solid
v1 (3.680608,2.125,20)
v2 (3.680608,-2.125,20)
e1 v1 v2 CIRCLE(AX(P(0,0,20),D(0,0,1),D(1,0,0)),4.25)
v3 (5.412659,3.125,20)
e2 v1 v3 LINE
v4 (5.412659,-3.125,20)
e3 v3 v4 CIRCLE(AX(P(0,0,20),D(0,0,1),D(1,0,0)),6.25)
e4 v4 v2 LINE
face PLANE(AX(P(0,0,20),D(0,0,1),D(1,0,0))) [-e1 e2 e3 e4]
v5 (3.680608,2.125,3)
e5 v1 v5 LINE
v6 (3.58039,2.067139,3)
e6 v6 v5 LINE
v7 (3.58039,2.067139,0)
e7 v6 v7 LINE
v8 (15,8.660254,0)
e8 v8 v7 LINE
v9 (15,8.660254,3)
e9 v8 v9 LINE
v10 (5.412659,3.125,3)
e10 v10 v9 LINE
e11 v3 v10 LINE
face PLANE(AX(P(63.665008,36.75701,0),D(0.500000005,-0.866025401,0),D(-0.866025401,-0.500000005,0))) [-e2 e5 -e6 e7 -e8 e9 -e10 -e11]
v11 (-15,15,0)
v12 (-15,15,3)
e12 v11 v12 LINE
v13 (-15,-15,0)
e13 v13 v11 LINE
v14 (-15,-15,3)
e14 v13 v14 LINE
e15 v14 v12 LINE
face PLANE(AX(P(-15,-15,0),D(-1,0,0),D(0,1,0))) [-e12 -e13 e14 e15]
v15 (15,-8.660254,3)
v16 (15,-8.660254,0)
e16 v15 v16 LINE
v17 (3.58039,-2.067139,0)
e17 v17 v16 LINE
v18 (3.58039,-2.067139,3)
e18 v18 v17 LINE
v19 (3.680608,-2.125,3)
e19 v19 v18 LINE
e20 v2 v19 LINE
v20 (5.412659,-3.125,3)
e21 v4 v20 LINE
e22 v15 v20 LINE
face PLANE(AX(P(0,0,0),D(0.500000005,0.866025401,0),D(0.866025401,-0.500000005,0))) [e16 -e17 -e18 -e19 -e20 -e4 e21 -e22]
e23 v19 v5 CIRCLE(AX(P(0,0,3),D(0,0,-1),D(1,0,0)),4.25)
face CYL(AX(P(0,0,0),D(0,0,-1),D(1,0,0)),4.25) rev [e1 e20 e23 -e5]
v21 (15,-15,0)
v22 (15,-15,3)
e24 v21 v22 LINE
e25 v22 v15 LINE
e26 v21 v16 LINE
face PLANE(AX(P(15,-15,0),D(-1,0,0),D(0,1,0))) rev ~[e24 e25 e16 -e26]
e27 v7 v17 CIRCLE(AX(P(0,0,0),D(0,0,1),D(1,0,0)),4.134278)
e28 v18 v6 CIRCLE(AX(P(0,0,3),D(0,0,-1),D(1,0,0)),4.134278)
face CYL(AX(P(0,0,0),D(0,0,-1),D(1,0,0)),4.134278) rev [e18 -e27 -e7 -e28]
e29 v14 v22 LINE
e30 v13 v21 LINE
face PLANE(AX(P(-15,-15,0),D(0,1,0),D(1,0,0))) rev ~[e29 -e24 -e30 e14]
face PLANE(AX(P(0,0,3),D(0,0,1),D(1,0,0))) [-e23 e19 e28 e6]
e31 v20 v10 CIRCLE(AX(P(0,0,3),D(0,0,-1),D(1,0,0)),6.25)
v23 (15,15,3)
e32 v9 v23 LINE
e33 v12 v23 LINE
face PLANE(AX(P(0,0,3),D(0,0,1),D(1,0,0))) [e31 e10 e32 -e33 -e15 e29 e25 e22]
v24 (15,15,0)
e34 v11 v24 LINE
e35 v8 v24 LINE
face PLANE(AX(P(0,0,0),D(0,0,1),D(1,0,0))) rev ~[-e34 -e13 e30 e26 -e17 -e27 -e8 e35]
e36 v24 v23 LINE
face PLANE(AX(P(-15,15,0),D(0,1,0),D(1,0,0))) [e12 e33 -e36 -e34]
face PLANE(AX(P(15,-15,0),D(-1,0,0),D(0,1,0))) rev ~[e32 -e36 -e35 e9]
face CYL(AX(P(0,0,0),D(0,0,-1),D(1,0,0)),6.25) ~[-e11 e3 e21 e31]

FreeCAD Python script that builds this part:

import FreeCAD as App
import Part
import Sketcher
from FreeCAD import Vector
Q = App.Units.Quantity

doc = App.newDocument("Part")
body = doc.addObject("PartDesign::Body", "Body")

# Sketch on XY plane
sketch1 = doc.addObject("Sketcher::SketchObject", "Sketch")
body.addObject(sketch1)
sketch1.AttachmentSupport = (doc.XY_Plane, [""])
sketch1.MapMode = "FlatFace"
sketch1.addGeometry([
    Part.Circle(Vector(0, 0, 0), Vector(0, 0, 1), 6.2),
    Part.Circle(Vector(0, 0, 0), Vector(0, 0, 1), 4.2),
], False)
sketch1.addConstraint([
    Sketcher.Constraint("Coincident", 0, 3, -1, 1),
    Sketcher.Constraint("Coincident", 1, 3, -1, 1),
    Sketcher.Constraint("Diameter", 0, 12.5),
    Sketcher.Constraint("Diameter", 1, 8.5),
])
pad1 = doc.addObject("PartDesign::Pad", "Pad")
body.addObject(pad1)
pad1.Profile = sketch1
pad1.Length = 20

# Sketch on XY plane
sketch2 = doc.addObject("Sketcher::SketchObject", "Sketch001")
body.addObject(sketch2)
sketch2.AttachmentSupport = (doc.XY_Plane, [""])
sketch2.MapMode = "FlatFace"
sketch2.addGeometry([
    Part.LineSegment(Vector(-15, 15, 0), Vector(-15, -15, 0)),
    Part.LineSegment(Vector(-15, -15, 0), Vector(15, -15, 0)),
    Part.LineSegment(Vector(15, -15, 0), Vector(15, 15, 0)),
    Part.LineSegment(Vector(15, 15, 0), Vector(-15, 15, 0)),
], False)
sketch2.addConstraint([
    Sketcher.Constraint("Coincident", 0, 2, 1, 1),
    Sketcher.Constraint("Coincident", 1, 2, 2, 1),
    Sketcher.Constraint("Coincident", 2, 2, 3, 1),
    Sketcher.Constraint("Coincident", 3, 2, 0, 1),
    Sketcher.Constraint("Vertical", 0),
    Sketcher.Constraint("Horizontal", 1),
    Sketcher.Constraint("Vertical", 2),
    Sketcher.Constraint("Horizontal", 3),
    Sketcher.Constraint("Symmetric", 0, 2, 2, 2, -1, 1),
    Sketcher.Constraint("Equal", 3, 0),
    Sketcher.Constraint("DistanceX", 1, 1, 1, 2, 30.0),
])
pad2 = doc.addObject("PartDesign::Pad", "Pad001")
body.addObject(pad2)
pad2.Profile = sketch2
pad2.Length = 3

# Sketch on XY plane
sketch3 = doc.addObject("Sketcher::SketchObject", "Sketch002")
body.addObject(sketch3)
sketch3.AttachmentSupport = (doc.XY_Plane, [""])
sketch3.MapMode = "FlatFace"
sketch3.addGeometry(Part.Circle(Vector(0, 0, 0), Vector(0, 0, 1), 4.1), False)
sketch3.addConstraint([
    Sketcher.Constraint("Coincident", 0, 3, -1, 1),
    Sketcher.Constraint("Diameter", 0, 8.268556),
])
pocket1 = doc.addObject("PartDesign::Pocket", "Pocket")
body.addObject(pocket1)
pocket1.Profile = sketch3
pocket1.Type = "ThroughAll"
pocket1.Reversed = True

# Sketch on XY plane
sketch4 = doc.addObject("Sketcher::SketchObject", "Sketch003")
body.addObject(sketch4)
sketch4.AttachmentSupport = (doc.XY_Plane, [""])
sketch4.MapMode = "FlatFace"
sketch4.addGeometry([
    Part.LineSegment(Vector(64, -37, 0), Vector(64, 37, 0)),
    Part.LineSegment(Vector(64, 37, 0), Vector(0, 0, 0)),
    Part.LineSegment(Vector(0, 0, 0), Vector(64, -37, 0)),
], False)
sketch4.addConstraint([
    Sketcher.Constraint("Coincident", 0, 2, 1, 1),
    Sketcher.Constraint("Coincident", 1, 2, 2, 1),
    Sketcher.Constraint("Coincident", 2, 2, 0, 1),
    Sketcher.Constraint("Vertical", 0),
    Sketcher.Constraint("Coincident", 1, 2, -1, 1),
    Sketcher.Constraint("Equal", 1, 2),
    Sketcher.Constraint("Angle", 1, Q("-150 deg")),
    Sketcher.Constraint("DistanceY", 0, 1, 0, 2, 73.51402),
])
pocket2 = doc.addObject("PartDesign::Pocket", "Pocket001")
body.addObject(pocket2)
pocket2.Profile = sketch4
pocket2.Length = 25
pocket2.Reversed = True

doc.recompute()
